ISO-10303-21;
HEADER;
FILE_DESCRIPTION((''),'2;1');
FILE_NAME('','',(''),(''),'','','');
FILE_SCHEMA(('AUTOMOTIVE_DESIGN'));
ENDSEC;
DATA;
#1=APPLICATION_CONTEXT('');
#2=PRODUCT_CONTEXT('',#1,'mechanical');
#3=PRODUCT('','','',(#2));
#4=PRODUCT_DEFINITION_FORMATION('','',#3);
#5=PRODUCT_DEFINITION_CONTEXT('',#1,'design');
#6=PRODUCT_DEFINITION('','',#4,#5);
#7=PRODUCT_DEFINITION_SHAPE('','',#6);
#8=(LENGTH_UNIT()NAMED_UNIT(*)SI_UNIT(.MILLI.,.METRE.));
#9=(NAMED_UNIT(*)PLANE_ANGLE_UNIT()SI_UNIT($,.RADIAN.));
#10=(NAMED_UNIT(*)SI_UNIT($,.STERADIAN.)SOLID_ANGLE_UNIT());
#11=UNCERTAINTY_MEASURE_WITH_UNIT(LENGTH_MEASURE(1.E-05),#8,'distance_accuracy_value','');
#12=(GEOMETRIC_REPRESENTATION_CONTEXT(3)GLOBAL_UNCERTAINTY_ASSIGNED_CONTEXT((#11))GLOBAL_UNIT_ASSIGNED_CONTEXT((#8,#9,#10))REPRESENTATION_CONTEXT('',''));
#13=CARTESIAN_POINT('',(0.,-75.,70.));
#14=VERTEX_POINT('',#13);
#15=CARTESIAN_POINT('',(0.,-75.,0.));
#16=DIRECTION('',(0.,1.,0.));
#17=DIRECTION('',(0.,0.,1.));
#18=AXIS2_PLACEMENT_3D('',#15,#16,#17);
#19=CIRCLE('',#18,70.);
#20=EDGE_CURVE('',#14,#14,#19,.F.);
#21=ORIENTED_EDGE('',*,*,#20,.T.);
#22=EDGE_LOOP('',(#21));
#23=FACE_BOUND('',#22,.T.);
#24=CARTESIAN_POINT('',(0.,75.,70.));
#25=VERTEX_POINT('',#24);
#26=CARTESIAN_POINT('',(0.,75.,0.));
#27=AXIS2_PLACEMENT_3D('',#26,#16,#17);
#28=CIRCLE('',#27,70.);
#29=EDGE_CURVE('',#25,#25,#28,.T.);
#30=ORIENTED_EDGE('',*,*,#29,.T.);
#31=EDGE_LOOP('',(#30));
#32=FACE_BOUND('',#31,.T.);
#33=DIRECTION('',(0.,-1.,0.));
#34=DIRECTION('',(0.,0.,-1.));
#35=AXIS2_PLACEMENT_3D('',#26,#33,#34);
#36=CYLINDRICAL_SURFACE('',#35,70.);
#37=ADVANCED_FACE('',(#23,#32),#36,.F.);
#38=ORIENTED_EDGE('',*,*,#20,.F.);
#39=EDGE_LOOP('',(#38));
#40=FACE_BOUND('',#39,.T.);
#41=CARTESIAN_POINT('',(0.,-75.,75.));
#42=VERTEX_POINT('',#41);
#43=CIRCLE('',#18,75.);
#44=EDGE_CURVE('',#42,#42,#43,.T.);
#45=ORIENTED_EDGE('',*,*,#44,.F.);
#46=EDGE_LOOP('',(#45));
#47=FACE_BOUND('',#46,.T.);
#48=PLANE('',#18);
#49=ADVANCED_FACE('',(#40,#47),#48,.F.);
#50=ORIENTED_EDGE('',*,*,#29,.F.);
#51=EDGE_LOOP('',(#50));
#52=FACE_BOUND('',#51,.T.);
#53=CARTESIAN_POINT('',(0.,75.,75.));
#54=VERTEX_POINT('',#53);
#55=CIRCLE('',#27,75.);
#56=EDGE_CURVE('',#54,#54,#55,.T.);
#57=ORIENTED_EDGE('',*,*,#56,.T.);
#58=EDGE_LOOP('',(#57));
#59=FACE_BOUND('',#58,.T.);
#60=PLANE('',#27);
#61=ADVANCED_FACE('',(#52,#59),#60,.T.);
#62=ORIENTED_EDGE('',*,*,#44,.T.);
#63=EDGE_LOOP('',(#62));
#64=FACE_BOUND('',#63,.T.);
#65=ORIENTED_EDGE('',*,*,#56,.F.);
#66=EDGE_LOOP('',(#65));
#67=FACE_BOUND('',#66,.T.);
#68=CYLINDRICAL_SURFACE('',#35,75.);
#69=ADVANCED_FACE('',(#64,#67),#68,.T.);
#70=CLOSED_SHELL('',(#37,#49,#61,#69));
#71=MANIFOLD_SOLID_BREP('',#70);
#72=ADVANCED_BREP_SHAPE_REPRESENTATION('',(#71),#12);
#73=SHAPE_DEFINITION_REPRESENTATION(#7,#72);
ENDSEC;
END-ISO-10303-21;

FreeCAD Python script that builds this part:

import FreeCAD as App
import Part
import Sketcher
from FreeCAD import Vector
Q = App.Units.Quantity

doc = App.newDocument("Part")
body = doc.addObject("PartDesign::Body", "Body")

# Sketch on XZ plane
sketch1 = doc.addObject("Sketcher::SketchObject", "Sketch")
body.addObject(sketch1)
sketch1.AttachmentSupport = (doc.XZ_Plane, [""])
sketch1.MapMode = "FlatFace"
sketch1.addGeometry(Part.Circle(Vector(0, 0, 0), Vector(0, 0, 1), 75), False)
sketch1.addConstraint([
    Sketcher.Constraint("Coincident", 0, 3, -1, 1),
    Sketcher.Constraint("Diameter", 0, Q("150 mm")),
])
pad1 = doc.addObject("PartDesign::Pad", "Pad")
body.addObject(pad1)
pad1.Profile = sketch1
pad1.Length = 150
pad1.Midplane = True

# Sketch on XZ plane
sketch2 = doc.addObject("Sketcher::SketchObject", "Sketch001")
body.addObject(sketch2)
sketch2.AttachmentSupport = (doc.XZ_Plane, [""])
sketch2.MapMode = "FlatFace"
sketch2.addGeometry(Part.Circle(Vector(0, 0, 0), Vector(0, 0, 1), 70), False)
sketch2.addConstraint([
    Sketcher.Constraint("Coincident", 0, 3, -1, 1),
    Sketcher.Constraint("Diameter", 0, Q("140 mm")),
])
pocket1 = doc.addObject("PartDesign::Pocket", "Pocket")
body.addObject(pocket1)
pocket1.Profile = sketch2
pocket1.Type = "ThroughAll"
pocket1.Midplane = True

# Sketch on XZ plane
sketch3 = doc.addObject("Sketcher::SketchObject", "Sketch002")
body.addObject(sketch3)
sketch3.AttachmentSupport = (doc.XZ_Plane, [""])
sketch3.MapMode = "FlatFace"
sketch3.AttachmentOffset = App.Placement(Vector(0, 0, 95), App.Rotation())
sketch3.addGeometry(Part.Circle(Vector(0, 0, 0), Vector(0, 0, 1), 8), False)
sketch3.addConstraint([
    Sketcher.Constraint("Coincident", 0, 3, -1, 1),
    Sketcher.Constraint("Diameter", 0, Q("15 mm")),
])
pocket2 = doc.addObject("PartDesign::Pocket", "Pocket001")
body.addObject(pocket2)
pocket2.Profile = sketch3
pocket2.Type = "ThroughAll"
pocket2.Reversed = True

doc.recompute()
